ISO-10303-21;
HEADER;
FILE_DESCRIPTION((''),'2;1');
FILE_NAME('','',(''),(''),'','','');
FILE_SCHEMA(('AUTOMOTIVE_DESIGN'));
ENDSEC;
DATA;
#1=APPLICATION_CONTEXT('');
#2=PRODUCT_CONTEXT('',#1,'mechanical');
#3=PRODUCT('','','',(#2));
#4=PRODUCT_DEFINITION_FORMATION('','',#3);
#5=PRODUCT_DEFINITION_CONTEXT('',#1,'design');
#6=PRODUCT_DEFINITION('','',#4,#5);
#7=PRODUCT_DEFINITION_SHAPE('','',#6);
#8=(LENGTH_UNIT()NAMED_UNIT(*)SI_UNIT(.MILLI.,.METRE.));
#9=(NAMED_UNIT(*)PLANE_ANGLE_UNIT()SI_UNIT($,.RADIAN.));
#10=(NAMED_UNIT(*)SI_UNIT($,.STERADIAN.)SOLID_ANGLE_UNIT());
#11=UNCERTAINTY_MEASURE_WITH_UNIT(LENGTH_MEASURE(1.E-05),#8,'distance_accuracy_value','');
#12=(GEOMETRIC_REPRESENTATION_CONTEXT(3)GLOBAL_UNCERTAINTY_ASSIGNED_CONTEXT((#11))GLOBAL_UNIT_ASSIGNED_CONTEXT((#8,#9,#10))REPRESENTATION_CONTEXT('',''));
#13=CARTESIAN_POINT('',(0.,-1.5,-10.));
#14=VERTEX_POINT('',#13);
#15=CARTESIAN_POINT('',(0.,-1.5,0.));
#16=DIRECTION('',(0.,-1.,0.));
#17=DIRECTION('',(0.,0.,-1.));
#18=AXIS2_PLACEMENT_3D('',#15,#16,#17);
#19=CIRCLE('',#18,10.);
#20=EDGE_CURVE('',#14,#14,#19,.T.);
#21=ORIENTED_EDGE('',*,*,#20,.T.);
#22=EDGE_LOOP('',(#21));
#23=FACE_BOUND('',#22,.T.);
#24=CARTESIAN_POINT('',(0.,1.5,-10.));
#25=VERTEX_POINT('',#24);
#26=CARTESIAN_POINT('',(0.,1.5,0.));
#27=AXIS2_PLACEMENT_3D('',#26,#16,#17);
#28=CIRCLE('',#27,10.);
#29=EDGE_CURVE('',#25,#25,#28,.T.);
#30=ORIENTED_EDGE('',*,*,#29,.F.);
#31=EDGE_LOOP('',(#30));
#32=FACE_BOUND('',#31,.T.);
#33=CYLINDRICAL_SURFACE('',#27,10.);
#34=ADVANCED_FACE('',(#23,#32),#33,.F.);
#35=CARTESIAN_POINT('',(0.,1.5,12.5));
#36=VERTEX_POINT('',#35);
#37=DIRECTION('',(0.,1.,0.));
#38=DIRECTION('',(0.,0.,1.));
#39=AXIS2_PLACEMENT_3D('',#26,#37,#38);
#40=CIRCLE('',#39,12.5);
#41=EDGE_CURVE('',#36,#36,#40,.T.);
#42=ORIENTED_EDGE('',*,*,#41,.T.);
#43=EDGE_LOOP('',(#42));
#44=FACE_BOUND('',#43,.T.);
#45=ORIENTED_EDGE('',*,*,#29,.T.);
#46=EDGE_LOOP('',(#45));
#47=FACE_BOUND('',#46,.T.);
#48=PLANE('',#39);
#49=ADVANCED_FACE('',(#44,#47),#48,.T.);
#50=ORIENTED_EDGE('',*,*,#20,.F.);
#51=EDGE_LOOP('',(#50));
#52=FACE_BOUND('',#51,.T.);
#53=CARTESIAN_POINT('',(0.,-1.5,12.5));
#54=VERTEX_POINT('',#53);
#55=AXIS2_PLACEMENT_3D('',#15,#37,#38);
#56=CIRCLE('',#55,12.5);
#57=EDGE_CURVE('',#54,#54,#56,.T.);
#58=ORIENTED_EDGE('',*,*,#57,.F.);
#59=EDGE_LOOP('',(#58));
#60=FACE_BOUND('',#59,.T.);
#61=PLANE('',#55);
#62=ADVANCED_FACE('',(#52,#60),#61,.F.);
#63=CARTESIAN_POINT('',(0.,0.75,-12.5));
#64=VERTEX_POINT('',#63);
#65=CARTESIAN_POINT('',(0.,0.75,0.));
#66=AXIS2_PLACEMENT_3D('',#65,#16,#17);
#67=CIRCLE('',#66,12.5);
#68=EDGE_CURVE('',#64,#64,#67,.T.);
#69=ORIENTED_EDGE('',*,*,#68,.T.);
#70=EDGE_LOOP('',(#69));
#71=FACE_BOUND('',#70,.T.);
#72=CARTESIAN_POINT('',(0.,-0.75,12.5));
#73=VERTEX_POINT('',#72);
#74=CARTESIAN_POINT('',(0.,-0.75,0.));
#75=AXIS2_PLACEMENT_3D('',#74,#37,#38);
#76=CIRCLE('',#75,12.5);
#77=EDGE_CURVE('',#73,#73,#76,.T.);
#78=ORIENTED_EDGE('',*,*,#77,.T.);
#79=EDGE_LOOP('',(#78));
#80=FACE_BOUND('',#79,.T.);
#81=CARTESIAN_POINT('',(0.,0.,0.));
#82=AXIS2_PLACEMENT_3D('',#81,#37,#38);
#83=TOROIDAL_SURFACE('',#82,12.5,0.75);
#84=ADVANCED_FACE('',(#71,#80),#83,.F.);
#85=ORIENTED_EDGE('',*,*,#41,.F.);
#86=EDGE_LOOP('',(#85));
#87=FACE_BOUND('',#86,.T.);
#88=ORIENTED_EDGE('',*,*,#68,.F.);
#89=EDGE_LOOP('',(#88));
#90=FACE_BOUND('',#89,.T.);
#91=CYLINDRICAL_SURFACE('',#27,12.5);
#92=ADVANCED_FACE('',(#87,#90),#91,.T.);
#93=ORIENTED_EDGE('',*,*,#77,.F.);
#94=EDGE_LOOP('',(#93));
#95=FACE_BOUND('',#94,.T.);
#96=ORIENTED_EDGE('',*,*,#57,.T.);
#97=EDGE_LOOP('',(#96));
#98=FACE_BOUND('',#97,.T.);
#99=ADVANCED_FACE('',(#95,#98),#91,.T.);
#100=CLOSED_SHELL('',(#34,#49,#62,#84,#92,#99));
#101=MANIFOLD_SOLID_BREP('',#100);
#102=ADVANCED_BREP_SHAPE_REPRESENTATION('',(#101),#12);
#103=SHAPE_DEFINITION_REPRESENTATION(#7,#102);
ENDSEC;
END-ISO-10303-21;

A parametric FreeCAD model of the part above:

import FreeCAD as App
import Part
import Sketcher

doc = App.newDocument("Part")
params = doc.addObject("Spreadsheet::Sheet", "Params")
for row, (alias, value) in enumerate([
    ("sketch1_diameter", "25 mm"),
    ("pad1_length", "3 mm"),
    ("sketch2_diameter", "1.5 mm"),
    ("groove_angle", "360 deg"),
    ("sketch3_diameter", "20 mm"),
], start=1):
    params.set(f"A{row}", alias)
    params.set(f"B{row}", "=" + value)
    params.setAlias(f"B{row}", alias)

body = doc.addObject("PartDesign::Body", "Body")

# Sketch on XZ plane
sketch1 = body.newObject("Sketcher::SketchObject", "Sketch")
sketch1.AttachmentSupport = (doc.getObject("XZ_Plane"), [""])
sketch1.MapMode = "FlatFace"
sketch1.addGeometry(Part.Circle(App.Vector(0, 0, 0), App.Vector(0, 0, 1), 12), False)
sketch1.addConstraint([
    Sketcher.Constraint("Coincident", 0, 3, -1, 1),
    Sketcher.Constraint("Diameter", 0, 25.0),
])
sketch1.setExpression("Constraints[1]", "Params.sketch1_diameter")
pad1 = body.newObject("PartDesign::Pad", "Pad")
pad1.Profile = sketch1
pad1.setExpression("Length", "Params.pad1_length")
pad1.Midplane = True

# Sketch on YZ plane
sketch2 = body.newObject("Sketcher::SketchObject", "Sketch001")
sketch2.AttachmentSupport = (doc.getObject("YZ_Plane"), [""])
sketch2.MapMode = "FlatFace"
sketch2.addGeometry(Part.Circle(App.Vector(0, -12.5, 0), App.Vector(0, 0, 1), 0.8), False)
sketch2.addConstraint([
    Sketcher.Constraint("PointOnObject", 0, 3, -2),
    Sketcher.Constraint("Diameter", 0, 1.5),
    Sketcher.Constraint("DistanceY", 0, 3, -1, 1, 12.5),
])
sketch2.setExpression("Constraints[1]", "Params.sketch2_diameter")
groove = body.newObject("PartDesign::Groove", "Groove")
groove.Profile = sketch2
groove.ReferenceAxis = (sketch2, ["H_Axis"])
groove.setExpression("Angle", "Params.groove_angle")

# Sketch on XZ plane
sketch3 = body.newObject("Sketcher::SketchObject", "Sketch002")
sketch3.AttachmentSupport = (doc.getObject("XZ_Plane"), [""])
sketch3.MapMode = "FlatFace"
sketch3.AttachmentOffset = App.Placement(App.Vector(0, 0, 1.5), App.Rotation())
sketch3.addGeometry(Part.Circle(App.Vector(0, 0, 0), App.Vector(0, 0, 1), 10), False)
sketch3.addConstraint([
    Sketcher.Constraint("Coincident", 0, 3, -1, 1),
    Sketcher.Constraint("Diameter", 0, 20.0),
])
sketch3.setExpression("Constraints[1]", "Params.sketch3_diameter")
pocket1 = body.newObject("PartDesign::Pocket", "Pocket")
pocket1.Profile = sketch3
pocket1.Type = "ThroughAll"

doc.recompute()
